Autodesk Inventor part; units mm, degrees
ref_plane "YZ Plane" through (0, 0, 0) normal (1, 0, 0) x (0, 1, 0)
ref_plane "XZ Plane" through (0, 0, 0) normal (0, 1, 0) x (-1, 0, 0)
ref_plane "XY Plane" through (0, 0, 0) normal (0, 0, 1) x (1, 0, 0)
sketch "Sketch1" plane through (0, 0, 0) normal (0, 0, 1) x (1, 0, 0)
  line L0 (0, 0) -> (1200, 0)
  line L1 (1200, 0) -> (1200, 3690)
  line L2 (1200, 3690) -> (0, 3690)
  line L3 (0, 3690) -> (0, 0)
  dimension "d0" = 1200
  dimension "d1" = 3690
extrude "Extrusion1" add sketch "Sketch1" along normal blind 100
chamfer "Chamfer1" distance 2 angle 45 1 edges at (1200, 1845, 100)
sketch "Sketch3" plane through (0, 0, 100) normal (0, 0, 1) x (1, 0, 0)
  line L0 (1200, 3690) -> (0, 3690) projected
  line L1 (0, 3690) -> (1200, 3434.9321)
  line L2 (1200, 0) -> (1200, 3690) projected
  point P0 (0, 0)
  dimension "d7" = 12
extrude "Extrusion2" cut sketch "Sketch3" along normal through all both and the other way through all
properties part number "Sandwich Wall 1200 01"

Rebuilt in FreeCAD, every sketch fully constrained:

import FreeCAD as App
import Part
import Sketcher

V = App.Vector
Q = App.Units.Quantity


def edges_at(feature, points):
    """Names of the edges that pass closest to the given points."""
    edges = feature.Shape.Edges
    near = lambda p: min(range(len(edges)), key=lambda i: edges[i].distToShape(Part.Vertex(*p))[0])
    return sorted({f"Edge{near(p) + 1}" for p in points})


def add_polygon(sketch, points):
    """Adds a closed chain of lines whose ends are joined by coincident constraints."""
    first, n = sketch.GeometryCount, len(points)
    for a, b in zip(points, points[1:] + points[:1]):
        sketch.addGeometry(Part.LineSegment(App.Vector(*a, 0), App.Vector(*b, 0)), False)
    for i in range(n):
        sketch.addConstraint(Sketcher.Constraint("Coincident", first + i, 2, first + (i + 1) % n, 1))

doc = App.newDocument("Part")
body = doc.addObject("PartDesign::Body", "Body")

# Sketch on XY plane
sketch1 = doc.addObject("Sketcher::SketchObject", "Sketch")
body.addObject(sketch1)
sketch1.AttachmentSupport = (doc.XY_Plane, [""])
sketch1.MapMode = "FlatFace"
add_polygon(sketch1, [(0, 3690), (0, 0), (1200, 0), (1200, 3690)])  # lines 0-3
sketch1.addConstraint(Sketcher.Constraint("Vertical", 0))
sketch1.addConstraint(Sketcher.Constraint("Horizontal", 1))
sketch1.addConstraint(Sketcher.Constraint("Vertical", 2))
sketch1.addConstraint(Sketcher.Constraint("Horizontal", 3))
sketch1.addConstraint(Sketcher.Constraint("Coincident", 0, 2, -1, 1))
sketch1.addConstraint(Sketcher.Constraint("DistanceX", 1, 1, 1, 2, Q("1200 mm")))
sketch1.addConstraint(Sketcher.Constraint("DistanceY", 0, 2, 0, 1, Q("3690 mm")))
pad1 = doc.addObject("PartDesign::Pad", "Pad")
body.addObject(pad1)
pad1.Profile = sketch1
pad1.Length = 100
doc.recompute()

chamfer = doc.addObject("PartDesign::Chamfer", "Chamfer")
body.addObject(chamfer)
chamfer.Base = (pad1, edges_at(pad1, [(1200, 1845, 100)]))
chamfer.Size = 2

# Sketch on XY plane
sketch2 = doc.addObject("Sketcher::SketchObject", "Sketch001")
body.addObject(sketch2)
sketch2.AttachmentSupport = (doc.XY_Plane, [""])
sketch2.MapMode = "FlatFace"
sketch2.AttachmentOffset = App.Placement(V(0, 0, 100), App.Rotation())
add_polygon(sketch2, [(1200, 3434.9321), (1200, 3690), (0, 3690)])  # lines 0-2
sketch2.addConstraint(Sketcher.Constraint("Vertical", 0))
sketch2.addConstraint(Sketcher.Constraint("Horizontal", 1))
sketch2.addConstraint(Sketcher.Constraint("PointOnObject", 1, 2, -2))
sketch2.addConstraint(Sketcher.Constraint("Angle", 2, Q("-12 deg")))
sketch2.addConstraint(Sketcher.Constraint("DistanceX", 1, 2, 1, 1, Q("1200 mm")))
sketch2.addConstraint(Sketcher.Constraint("DistanceY", -1, 1, 0, 2, Q("3690 mm")))
pocket1 = doc.addObject("PartDesign::Pocket", "Pocket")
body.addObject(pocket1)
pocket1.Profile = sketch2
pocket1.Type = "ThroughAll"
pocket1.Midplane = True

doc.recompute()
